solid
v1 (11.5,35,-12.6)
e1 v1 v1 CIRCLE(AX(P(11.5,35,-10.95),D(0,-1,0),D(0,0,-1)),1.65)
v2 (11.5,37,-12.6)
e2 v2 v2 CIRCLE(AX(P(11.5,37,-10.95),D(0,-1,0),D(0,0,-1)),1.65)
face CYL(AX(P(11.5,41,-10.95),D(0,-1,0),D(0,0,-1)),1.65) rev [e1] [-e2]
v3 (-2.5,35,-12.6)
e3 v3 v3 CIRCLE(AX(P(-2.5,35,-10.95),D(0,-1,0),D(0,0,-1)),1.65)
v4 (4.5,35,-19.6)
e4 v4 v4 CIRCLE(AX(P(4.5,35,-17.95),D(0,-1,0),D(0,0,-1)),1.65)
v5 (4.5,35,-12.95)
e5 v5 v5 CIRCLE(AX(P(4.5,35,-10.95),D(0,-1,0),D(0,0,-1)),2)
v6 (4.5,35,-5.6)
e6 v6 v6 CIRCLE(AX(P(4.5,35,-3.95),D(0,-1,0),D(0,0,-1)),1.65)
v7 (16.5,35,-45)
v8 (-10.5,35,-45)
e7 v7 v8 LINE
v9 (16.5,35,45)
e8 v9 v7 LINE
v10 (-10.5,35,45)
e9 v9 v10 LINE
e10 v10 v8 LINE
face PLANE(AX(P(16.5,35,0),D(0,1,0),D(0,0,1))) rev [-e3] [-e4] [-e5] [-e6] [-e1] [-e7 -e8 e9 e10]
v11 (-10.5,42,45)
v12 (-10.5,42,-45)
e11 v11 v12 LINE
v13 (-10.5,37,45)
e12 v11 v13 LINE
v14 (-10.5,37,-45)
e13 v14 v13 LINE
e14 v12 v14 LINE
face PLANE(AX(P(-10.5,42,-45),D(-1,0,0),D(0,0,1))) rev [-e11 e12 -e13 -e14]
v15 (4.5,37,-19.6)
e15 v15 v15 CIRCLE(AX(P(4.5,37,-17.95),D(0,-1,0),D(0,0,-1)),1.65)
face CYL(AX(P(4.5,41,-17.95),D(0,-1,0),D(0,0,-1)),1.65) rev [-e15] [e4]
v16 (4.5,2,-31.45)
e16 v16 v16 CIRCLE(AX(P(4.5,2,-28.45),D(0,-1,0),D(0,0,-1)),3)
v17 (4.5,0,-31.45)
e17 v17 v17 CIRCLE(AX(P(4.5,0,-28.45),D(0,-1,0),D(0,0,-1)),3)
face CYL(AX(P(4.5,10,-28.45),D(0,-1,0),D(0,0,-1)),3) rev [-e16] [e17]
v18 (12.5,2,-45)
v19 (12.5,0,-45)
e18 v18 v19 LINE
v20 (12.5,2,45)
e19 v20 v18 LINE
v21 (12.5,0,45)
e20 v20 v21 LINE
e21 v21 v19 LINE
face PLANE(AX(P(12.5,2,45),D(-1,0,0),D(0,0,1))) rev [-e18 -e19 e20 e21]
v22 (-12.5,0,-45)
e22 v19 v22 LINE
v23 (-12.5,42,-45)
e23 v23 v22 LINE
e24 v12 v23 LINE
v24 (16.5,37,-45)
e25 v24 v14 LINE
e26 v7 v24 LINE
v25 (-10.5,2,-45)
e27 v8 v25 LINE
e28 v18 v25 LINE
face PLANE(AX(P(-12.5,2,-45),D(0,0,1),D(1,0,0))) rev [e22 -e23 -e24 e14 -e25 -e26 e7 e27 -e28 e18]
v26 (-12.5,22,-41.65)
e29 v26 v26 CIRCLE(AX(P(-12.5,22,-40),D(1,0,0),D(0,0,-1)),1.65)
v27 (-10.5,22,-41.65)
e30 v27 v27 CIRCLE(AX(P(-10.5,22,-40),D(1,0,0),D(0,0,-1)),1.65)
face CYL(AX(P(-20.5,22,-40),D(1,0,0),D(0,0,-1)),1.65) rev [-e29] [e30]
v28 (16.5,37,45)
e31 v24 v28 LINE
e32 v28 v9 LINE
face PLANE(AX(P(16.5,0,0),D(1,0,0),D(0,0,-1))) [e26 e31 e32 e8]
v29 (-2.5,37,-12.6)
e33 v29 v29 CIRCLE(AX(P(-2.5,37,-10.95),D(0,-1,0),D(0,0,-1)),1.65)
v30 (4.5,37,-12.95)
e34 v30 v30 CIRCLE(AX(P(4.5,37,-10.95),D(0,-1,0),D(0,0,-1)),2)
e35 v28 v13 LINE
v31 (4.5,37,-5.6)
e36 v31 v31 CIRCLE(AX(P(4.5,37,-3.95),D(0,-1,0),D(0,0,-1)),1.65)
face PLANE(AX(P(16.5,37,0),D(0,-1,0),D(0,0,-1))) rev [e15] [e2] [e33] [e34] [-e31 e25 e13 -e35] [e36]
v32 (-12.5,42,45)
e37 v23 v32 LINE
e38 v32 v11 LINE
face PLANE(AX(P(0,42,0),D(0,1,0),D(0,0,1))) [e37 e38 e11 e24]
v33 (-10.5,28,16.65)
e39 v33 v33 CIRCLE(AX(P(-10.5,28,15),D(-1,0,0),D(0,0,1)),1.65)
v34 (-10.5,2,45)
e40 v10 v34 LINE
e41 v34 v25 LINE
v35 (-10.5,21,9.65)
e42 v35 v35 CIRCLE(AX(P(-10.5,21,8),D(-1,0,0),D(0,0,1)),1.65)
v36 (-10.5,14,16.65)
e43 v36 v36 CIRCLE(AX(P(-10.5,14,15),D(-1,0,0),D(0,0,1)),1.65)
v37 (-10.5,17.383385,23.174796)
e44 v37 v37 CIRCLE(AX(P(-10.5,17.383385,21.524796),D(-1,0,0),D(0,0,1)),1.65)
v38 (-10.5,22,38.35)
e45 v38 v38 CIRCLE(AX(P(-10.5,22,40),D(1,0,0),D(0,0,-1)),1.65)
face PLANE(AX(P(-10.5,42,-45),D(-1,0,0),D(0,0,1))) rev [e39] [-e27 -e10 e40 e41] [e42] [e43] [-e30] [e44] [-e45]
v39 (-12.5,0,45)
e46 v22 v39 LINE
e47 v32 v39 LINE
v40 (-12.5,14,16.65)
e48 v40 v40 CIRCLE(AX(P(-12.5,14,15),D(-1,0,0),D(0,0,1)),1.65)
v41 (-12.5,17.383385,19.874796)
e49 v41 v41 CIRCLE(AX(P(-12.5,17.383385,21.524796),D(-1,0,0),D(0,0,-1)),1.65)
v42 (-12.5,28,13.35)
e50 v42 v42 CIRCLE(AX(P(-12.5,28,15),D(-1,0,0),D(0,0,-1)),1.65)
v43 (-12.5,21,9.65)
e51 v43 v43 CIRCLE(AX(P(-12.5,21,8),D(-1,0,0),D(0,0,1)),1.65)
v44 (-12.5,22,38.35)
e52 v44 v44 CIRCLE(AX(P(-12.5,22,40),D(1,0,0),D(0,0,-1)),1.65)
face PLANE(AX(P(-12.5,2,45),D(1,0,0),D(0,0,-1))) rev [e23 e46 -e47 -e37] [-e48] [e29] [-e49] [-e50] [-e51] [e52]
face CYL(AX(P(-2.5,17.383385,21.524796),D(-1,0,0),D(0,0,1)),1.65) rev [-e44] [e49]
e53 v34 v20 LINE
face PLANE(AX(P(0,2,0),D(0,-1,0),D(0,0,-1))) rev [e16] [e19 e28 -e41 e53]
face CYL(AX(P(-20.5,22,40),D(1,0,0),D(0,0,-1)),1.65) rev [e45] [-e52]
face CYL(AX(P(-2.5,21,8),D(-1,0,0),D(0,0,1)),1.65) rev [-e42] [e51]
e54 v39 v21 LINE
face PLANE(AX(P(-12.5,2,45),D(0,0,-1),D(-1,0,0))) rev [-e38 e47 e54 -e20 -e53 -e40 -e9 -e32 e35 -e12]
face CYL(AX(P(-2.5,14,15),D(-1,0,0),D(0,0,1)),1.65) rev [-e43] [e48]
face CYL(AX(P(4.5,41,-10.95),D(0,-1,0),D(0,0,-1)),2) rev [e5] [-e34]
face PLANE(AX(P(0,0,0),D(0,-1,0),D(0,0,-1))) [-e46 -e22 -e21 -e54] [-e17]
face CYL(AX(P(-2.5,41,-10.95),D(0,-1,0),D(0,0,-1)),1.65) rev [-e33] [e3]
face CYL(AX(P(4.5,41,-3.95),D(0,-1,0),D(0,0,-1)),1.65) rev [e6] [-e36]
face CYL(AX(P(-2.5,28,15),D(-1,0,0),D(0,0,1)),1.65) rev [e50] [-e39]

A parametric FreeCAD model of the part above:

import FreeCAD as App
import Part
import Sketcher

V = App.Vector
Q = App.Units.Quantity


def add_polygon(sketch, points):
    """Adds a closed chain of lines whose ends are joined by coincident constraints."""
    first, n = sketch.GeometryCount, len(points)
    for a, b in zip(points, points[1:] + points[:1]):
        sketch.addGeometry(Part.LineSegment(App.Vector(*a, 0), App.Vector(*b, 0)), False)
    for i in range(n):
        sketch.addConstraint(Sketcher.Constraint("Coincident", first + i, 2, first + (i + 1) % n, 1))

doc = App.newDocument("Part")
params = doc.addObject("Spreadsheet::Sheet", "Params")
for row, (alias, value) in enumerate([
    ("sketch1_width", "25 mm"),
    ("sketch1_height", "90 mm"),
    ("pad1_length", "2 mm"),
    ("sketch2_width", "2 mm"),
    ("sketch2_height", "90 mm"),
    ("pad2_length", "40 mm"),
    ("sketch3_diameter", "3.3 mm"),
    ("pocket1_length", "10 mm"),
    ("sketch4_diameter", "6 mm"),
    ("pocket2_length", "10 mm"),
    ("sketch5_diameter", "3.3 mm"),
    ("pocket3_length", "10 mm"),
    ("sketch6_width", "2 mm"),
    ("sketch6_height", "90 mm"),
    ("pad3_length", "27 mm"),
    ("sketch7_diameter", "4 mm"),
    ("sketch7_diameter2", "3.3 mm"),
    ("pocket4_length", "6 mm"),
], start=1):
    params.set(f"A{row}", alias)
    params.set(f"B{row}", "=" + value)
    params.setAlias(f"B{row}", alias)

body = doc.addObject("PartDesign::Body", "Body")

# Sketch on XZ plane
sketch1 = body.newObject("Sketcher::SketchObject", "Sketch")
sketch1.AttachmentSupport = (doc.getObject("XZ_Plane"), [""])
sketch1.MapMode = "FlatFace"
add_polygon(sketch1, [(-12, -45), (-12, 45), (12, 45), (12, -45)])  # lines 0-3
sketch1.addConstraint(Sketcher.Constraint("Vertical", 0))
sketch1.addConstraint(Sketcher.Constraint("Horizontal", 1))
sketch1.addConstraint(Sketcher.Constraint("Vertical", 2))
sketch1.addConstraint(Sketcher.Constraint("Horizontal", 3))
sketch1.addConstraint(Sketcher.Constraint("Symmetric", 0, 2, 2, 2, -1, 1))
sketch1.addConstraint(Sketcher.Constraint("DistanceX", 1, 1, 1, 2, Q("25 mm")))
sketch1.addConstraint(Sketcher.Constraint("DistanceY", 0, 1, 0, 2, Q("90 mm")))
sketch1.setExpression("Constraints[9]", "Params.sketch1_width")
sketch1.setExpression("Constraints[10]", "Params.sketch1_height")
pad1 = body.newObject("PartDesign::Pad", "Pad")
pad1.Profile = sketch1
pad1.setExpression("Length", "Params.pad1_length")
pad1.Reversed = True

# Sketch on XZ plane
sketch2 = body.newObject("Sketcher::SketchObject", "Sketch001")
sketch2.AttachmentSupport = (doc.getObject("XZ_Plane"), [""])
sketch2.MapMode = "FlatFace"
sketch2.AttachmentOffset = App.Placement(V(0, 0, -2), App.Rotation())
add_polygon(sketch2, [(-12.5, -45), (-12.5, 45), (-10.5, 45), (-10.5, -45)])  # lines 0-3
sketch2.addConstraint(Sketcher.Constraint("Vertical", 0))
sketch2.addConstraint(Sketcher.Constraint("Horizontal", 1))
sketch2.addConstraint(Sketcher.Constraint("Vertical", 2))
sketch2.addConstraint(Sketcher.Constraint("Horizontal", 3))
sketch2.addConstraint(Sketcher.Constraint("DistanceX", 1, 1, 1, 2, Q("2 mm")))
sketch2.addConstraint(Sketcher.Constraint("DistanceY", 0, 1, 0, 2, Q("90 mm")))
sketch2.addConstraint(Sketcher.Constraint("DistanceY", -1, 1, 0, 2, Q("45 mm")))
sketch2.addConstraint(Sketcher.Constraint("DistanceX", 0, 2, -1, 1, Q("12.5 mm")))
sketch2.setExpression("Constraints[8]", "Params.sketch2_width")
sketch2.setExpression("Constraints[9]", "Params.sketch2_height")
pad2 = body.newObject("PartDesign::Pad", "Pad001")
pad2.Profile = sketch2
pad2.setExpression("Length", "Params.pad2_length")
pad2.Reversed = True

# Sketch on YZ plane
sketch3 = body.newObject("Sketcher::SketchObject", "Sketch002")
sketch3.AttachmentSupport = (doc.getObject("YZ_Plane"), [""])
sketch3.MapMode = "FlatFace"
sketch3.AttachmentOffset = App.Placement(V(0, 0, -12.5), App.Rotation())
sketch3.addGeometry(Part.Circle(V(21, 8, 0), V(0, 0, 1), 1.6), False)
sketch3.addGeometry(Part.Circle(V(17.4, 21.5, 0), V(0, 0, 1), 1.6), False)
sketch3.addGeometry(Part.Circle(V(14, 15, 0), V(0, 0, 1), 1.6), False)
sketch3.addGeometry(Part.Circle(V(28, 15, 0), V(0, 0, 1), 1.6), False)
sketch3.addConstraint(Sketcher.Constraint("Equal", 0, 1))
sketch3.addConstraint(Sketcher.Constraint("Equal", 1, 2))
sketch3.addConstraint(Sketcher.Constraint("Equal", 2, 3))
sketch3.addConstraint(Sketcher.Constraint("Horizontal", 2, 3, 3, 3))
sketch3.addConstraint(Sketcher.Constraint("Diameter", 0, Q("3.3 mm")))
sketch3.addConstraint(Sketcher.Constraint("DistanceX", -1, 1, 0, 3, Q("21 mm")))
sketch3.addConstraint(Sketcher.Constraint("DistanceY", -1, 1, 0, 3, Q("8 mm")))
sketch3.addConstraint(Sketcher.Constraint("DistanceX", -1, 1, 2, 3, Q("14 mm")))
sketch3.addConstraint(Sketcher.Constraint("DistanceY", -1, 1, 2, 3, Q("15 mm")))
sketch3.addConstraint(Sketcher.Constraint("DistanceX", -1, 1, 3, 3, Q("28 mm")))
sketch3.addConstraint(Sketcher.Constraint("DistanceX", -1, 1, 1, 3, Q("17.383385 mm")))
sketch3.addConstraint(Sketcher.Constraint("DistanceY", -1, 1, 1, 3, Q("21.524796 mm")))
sketch3.setExpression("Constraints[4]", "Params.sketch3_diameter")
pocket1 = body.newObject("PartDesign::Pocket", "Pocket")
pocket1.Profile = sketch3
pocket1.setExpression("Length", "Params.pocket1_length")
pocket1.Reversed = True

# Sketch on XZ plane
sketch4 = body.newObject("Sketcher::SketchObject", "Sketch003")
sketch4.AttachmentSupport = (doc.getObject("XZ_Plane"), [""])
sketch4.MapMode = "FlatFace"
sketch4.addGeometry(Part.Circle(V(4.5, -28.4, 0), V(0, 0, 1), 3), False)
sketch4.addConstraint(Sketcher.Constraint("Diameter", 0, Q("6 mm")))
sketch4.addConstraint(Sketcher.Constraint("DistanceX", -1, 1, 0, 3, Q("4.5 mm")))
sketch4.addConstraint(Sketcher.Constraint("DistanceY", 0, 3, -1, 1, Q("28.45 mm")))
sketch4.setExpression("Constraints[0]", "Params.sketch4_diameter")
pocket2 = body.newObject("PartDesign::Pocket", "Pocket001")
pocket2.Profile = sketch4
pocket2.setExpression("Length", "Params.pocket2_length")

# Sketch on YZ plane
sketch5 = body.newObject("Sketcher::SketchObject", "Sketch004")
sketch5.AttachmentSupport = (doc.getObject("YZ_Plane"), [""])
sketch5.MapMode = "FlatFace"
sketch5.AttachmentOffset = App.Placement(V(0, 0, -10.5), App.Rotation())
sketch5.addGeometry(Part.Circle(V(22, 40, 0), V(0, 0, 1), 1.6), False)
sketch5.addGeometry(Part.Circle(V(22, -40, 0), V(0, 0, 1), 1.6), False)
sketch5.addConstraint(Sketcher.Constraint("Equal", 0, 1))
sketch5.addConstraint(Sketcher.Constraint("Symmetric", 0, 3, 1, 3, -1))
sketch5.addConstraint(Sketcher.Constraint("Diameter", 0, Q("3.3 mm")))
sketch5.addConstraint(Sketcher.Constraint("DistanceX", -1, 1, 0, 3, Q("22 mm")))
sketch5.addConstraint(Sketcher.Constraint("DistanceY", -1, 1, 0, 3, Q("40 mm")))
sketch5.setExpression("Constraints[2]", "Params.sketch5_diameter")
pocket3 = body.newObject("PartDesign::Pocket", "Pocket002")
pocket3.Profile = sketch5
pocket3.setExpression("Length", "Params.pocket3_length")

# Sketch on YZ plane
sketch6 = body.newObject("Sketcher::SketchObject", "Sketch005")
sketch6.AttachmentSupport = (doc.getObject("YZ_Plane"), [""])
sketch6.MapMode = "FlatFace"
sketch6.AttachmentOffset = App.Placement(V(0, 0, -10.5), App.Rotation())
add_polygon(sketch6, [(35, 45), (35, -45), (37, -45), (37, 45)])  # lines 0-3
sketch6.addConstraint(Sketcher.Constraint("Vertical", 0))
sketch6.addConstraint(Sketcher.Constraint("Horizontal", 1))
sketch6.addConstraint(Sketcher.Constraint("Vertical", 2))
sketch6.addConstraint(Sketcher.Constraint("Horizontal", 3))
sketch6.addConstraint(Sketcher.Constraint("DistanceX", 1, 1, 1, 2, Q("2 mm")))
sketch6.addConstraint(Sketcher.Constraint("DistanceY", 0, 2, 0, 1, Q("90 mm")))
sketch6.addConstraint(Sketcher.Constraint("DistanceX", -1, 1, 0, 2, Q("35 mm")))
sketch6.addConstraint(Sketcher.Constraint("DistanceY", 0, 2, -1, 1, Q("45 mm")))
sketch6.setExpression("Constraints[8]", "Params.sketch6_width")
sketch6.setExpression("Constraints[9]", "Params.sketch6_height")
pad3 = body.newObject("PartDesign::Pad", "Pad002")
pad3.Profile = sketch6
pad3.setExpression("Length", "Params.pad3_length")

# Sketch on XZ plane
sketch7 = body.newObject("Sketcher::SketchObject", "Sketch006")
sketch7.AttachmentSupport = (doc.getObject("XZ_Plane"), [""])
sketch7.MapMode = "FlatFace"
sketch7.AttachmentOffset = App.Placement(V(0, 0, -35), App.Rotation())
sketch7.addGeometry(Part.Circle(V(4.5, -17.9, 0), V(0, 0, 1), 1.6), False)
sketch7.addGeometry(Part.Circle(V(11.5, -10.9, 0), V(0, 0, 1), 1.6), False)
sketch7.addGeometry(Part.Circle(V(4.5, -10.9, 0), V(0, 0, 1), 2), False)
sketch7.addGeometry(Part.Circle(V(-2.5, -10.9, 0), V(0, 0, 1), 1.6), False)
sketch7.addGeometry(Part.Circle(V(4.5, -4, 0), V(0, 0, 1), 1.6), False)
sketch7.addConstraint(Sketcher.Constraint("Equal", 0, 1))
sketch7.addConstraint(Sketcher.Constraint("Equal", 1, 3))
sketch7.addConstraint(Sketcher.Constraint("Equal", 3, 4))
sketch7.addConstraint(Sketcher.Constraint("Horizontal", 1, 3, 2, 3))
sketch7.addConstraint(Sketcher.Constraint("Horizontal", 2, 3, 3, 3))
sketch7.addConstraint(Sketcher.Constraint("Vertical", 0, 3, 2, 3))
sketch7.addConstraint(Sketcher.Constraint("Vertical", 2, 3, 4, 3))
sketch7.addConstraint(Sketcher.Constraint("Diameter", 2, Q("4 mm")))
sketch7.addConstraint(Sketcher.Constraint("Diameter", 0, Q("3.3 mm")))
sketch7.addConstraint(Sketcher.Constraint("DistanceX", 0, 3, 1, 3, Q("7 mm")))
sketch7.addConstraint(Sketcher.Constraint("DistanceY", 0, 3, 1, 3, Q("7 mm")))
sketch7.addConstraint(Sketcher.Constraint("DistanceX", 3, 3, 2, 3, Q("7 mm")))
sketch7.addConstraint(Sketcher.Constraint("DistanceY", 2, 3, 4, 3, Q("7 mm")))
sketch7.addConstraint(Sketcher.Constraint("DistanceX", -1, 1, 0, 3, Q("4.5 mm")))
sketch7.addConstraint(Sketcher.Constraint("DistanceY", 0, 3, -1, 1, Q("17.95 mm")))
sketch7.setExpression("Constraints[7]", "Params.sketch7_diameter")
sketch7.setExpression("Constraints[8]", "Params.sketch7_diameter2")
pocket4 = body.newObject("PartDesign::Pocket", "Pocket003")
pocket4.Profile = sketch7
pocket4.setExpression("Length", "Params.pocket4_length")

doc.recompute()
